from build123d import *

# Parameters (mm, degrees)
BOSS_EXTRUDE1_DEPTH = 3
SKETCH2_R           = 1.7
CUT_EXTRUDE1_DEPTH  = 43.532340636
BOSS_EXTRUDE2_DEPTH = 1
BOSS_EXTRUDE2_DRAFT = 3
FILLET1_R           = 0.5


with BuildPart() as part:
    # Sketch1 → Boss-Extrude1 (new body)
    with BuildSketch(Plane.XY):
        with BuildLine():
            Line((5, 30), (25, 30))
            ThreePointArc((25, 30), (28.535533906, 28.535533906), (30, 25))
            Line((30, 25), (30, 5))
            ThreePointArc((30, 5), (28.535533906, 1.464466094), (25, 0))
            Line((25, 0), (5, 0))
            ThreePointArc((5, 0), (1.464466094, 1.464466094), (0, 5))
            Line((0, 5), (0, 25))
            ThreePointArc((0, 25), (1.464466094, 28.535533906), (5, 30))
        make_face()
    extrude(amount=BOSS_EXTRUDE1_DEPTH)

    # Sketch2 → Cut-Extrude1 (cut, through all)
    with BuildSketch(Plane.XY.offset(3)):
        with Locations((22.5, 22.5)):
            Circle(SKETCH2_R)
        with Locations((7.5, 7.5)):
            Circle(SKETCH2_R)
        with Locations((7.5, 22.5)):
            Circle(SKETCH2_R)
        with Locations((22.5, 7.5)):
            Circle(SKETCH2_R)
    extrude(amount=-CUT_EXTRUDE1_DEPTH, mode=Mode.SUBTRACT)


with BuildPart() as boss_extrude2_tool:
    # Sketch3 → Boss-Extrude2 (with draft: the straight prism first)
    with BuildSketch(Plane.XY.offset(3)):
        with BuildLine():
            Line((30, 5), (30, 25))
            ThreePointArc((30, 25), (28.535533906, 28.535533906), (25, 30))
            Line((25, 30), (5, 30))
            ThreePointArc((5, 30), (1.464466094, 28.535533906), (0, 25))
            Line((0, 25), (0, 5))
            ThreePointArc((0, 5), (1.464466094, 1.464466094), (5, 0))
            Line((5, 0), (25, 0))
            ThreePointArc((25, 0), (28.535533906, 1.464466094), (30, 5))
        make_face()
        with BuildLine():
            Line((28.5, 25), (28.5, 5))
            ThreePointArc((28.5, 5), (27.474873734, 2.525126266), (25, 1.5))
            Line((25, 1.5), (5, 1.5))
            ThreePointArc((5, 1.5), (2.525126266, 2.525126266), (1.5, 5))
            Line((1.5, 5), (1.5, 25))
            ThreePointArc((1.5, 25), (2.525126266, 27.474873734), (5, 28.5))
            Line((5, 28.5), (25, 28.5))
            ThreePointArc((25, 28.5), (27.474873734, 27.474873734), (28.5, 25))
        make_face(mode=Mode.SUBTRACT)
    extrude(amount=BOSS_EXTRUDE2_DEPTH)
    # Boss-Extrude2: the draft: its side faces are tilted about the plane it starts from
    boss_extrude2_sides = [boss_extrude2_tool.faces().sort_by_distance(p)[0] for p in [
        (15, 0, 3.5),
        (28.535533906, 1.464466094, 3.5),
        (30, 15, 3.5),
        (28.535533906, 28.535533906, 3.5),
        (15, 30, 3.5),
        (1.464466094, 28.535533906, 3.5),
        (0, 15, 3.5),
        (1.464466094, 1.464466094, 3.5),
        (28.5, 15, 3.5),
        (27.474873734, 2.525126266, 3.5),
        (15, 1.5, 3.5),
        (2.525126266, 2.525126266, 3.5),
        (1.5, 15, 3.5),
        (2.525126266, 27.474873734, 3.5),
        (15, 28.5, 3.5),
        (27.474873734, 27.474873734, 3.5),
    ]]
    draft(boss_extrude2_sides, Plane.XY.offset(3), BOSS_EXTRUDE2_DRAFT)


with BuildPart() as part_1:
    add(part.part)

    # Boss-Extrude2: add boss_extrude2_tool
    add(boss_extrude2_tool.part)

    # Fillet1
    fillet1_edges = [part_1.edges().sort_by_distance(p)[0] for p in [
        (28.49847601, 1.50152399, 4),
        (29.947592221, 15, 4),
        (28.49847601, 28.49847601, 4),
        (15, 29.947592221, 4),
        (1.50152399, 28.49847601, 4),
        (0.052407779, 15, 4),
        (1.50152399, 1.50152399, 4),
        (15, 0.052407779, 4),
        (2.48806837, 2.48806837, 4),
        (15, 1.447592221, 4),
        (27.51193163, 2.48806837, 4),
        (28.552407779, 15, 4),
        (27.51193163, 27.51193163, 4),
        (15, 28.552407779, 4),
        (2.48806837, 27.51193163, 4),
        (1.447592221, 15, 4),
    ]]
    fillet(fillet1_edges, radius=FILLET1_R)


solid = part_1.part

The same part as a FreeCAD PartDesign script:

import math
import FreeCAD as App
import Part
import Sketcher
from FreeCAD import Vector


def edges_at(feature, points):
    """Names of the edges that pass closest to the given points."""
    edges = feature.Shape.Edges
    near = lambda p: min(range(len(edges)), key=lambda i: edges[i].distToShape(Part.Vertex(*p))[0])
    return sorted({f"Edge{near(p) + 1}" for p in points})


def faces_at(feature, points):
    """Names of the faces that lie closest to the given points."""
    faces = feature.Shape.Faces
    near = lambda p: min(range(len(faces)), key=lambda i: faces[i].distToShape(Part.Vertex(*p))[0])
    return sorted({f"Face{near(p) + 1}" for p in points})

doc = App.newDocument("Part")
body = doc.addObject("PartDesign::Body", "Body")

# Sketch on XY plane
sketch1 = body.newObject("Sketcher::SketchObject", "Sketch")
sketch1.AttachmentSupport = (doc.getObject("XY_Plane"), [""])
sketch1.MapMode = "FlatFace"
sketch1.addGeometry(Part.LineSegment(Vector(25, 30, 0), Vector(5, 30, 0)), False)
sketch1.addGeometry(Part.ArcOfCircle(Part.Circle(Vector(5, 25, 0), Vector(0, 0, 1), 5), math.radians(90), math.radians(180)), False)
sketch1.addGeometry(Part.LineSegment(Vector(0, 25, 0), Vector(0, 5, 0)), False)
sketch1.addGeometry(Part.ArcOfCircle(Part.Circle(Vector(5, 5, 0), Vector(0, 0, 1), 5), math.radians(180), math.radians(270)), False)
sketch1.addGeometry(Part.LineSegment(Vector(5, 0, 0), Vector(25, 0, 0)), False)
sketch1.addGeometry(Part.ArcOfCircle(Part.Circle(Vector(25, 5, 0), Vector(0, 0, 1), 5), math.radians(-90), math.radians(0)), False)
sketch1.addGeometry(Part.LineSegment(Vector(30, 5, 0), Vector(30, 25, 0)), False)
sketch1.addGeometry(Part.ArcOfCircle(Part.Circle(Vector(25, 25, 0), Vector(0, 0, 1), 5), math.radians(0), math.radians(90)), False)
sketch1.addConstraint(Sketcher.Constraint("Tangent", 0, 2, 1, 1))
sketch1.addConstraint(Sketcher.Constraint("Tangent", 1, 2, 2, 1))
sketch1.addConstraint(Sketcher.Constraint("Tangent", 2, 2, 3, 1))
sketch1.addConstraint(Sketcher.Constraint("Tangent", 3, 2, 4, 1))
sketch1.addConstraint(Sketcher.Constraint("Tangent", 4, 2, 5, 1))
sketch1.addConstraint(Sketcher.Constraint("Tangent", 5, 2, 6, 1))
sketch1.addConstraint(Sketcher.Constraint("Tangent", 6, 2, 7, 1))
sketch1.addConstraint(Sketcher.Constraint("Tangent", 7, 2, 0, 1))
sketch1.addConstraint(Sketcher.Constraint("Horizontal", 0))
sketch1.addConstraint(Sketcher.Constraint("Vertical", 2))
sketch1.addConstraint(Sketcher.Constraint("Horizontal", 4))
sketch1.addConstraint(Sketcher.Constraint("Vertical", 6))
sketch1.addConstraint(Sketcher.Constraint("Equal", 1, 3))
sketch1.addConstraint(Sketcher.Constraint("Equal", 3, 5))
sketch1.addConstraint(Sketcher.Constraint("Equal", 5, 7))
sketch1.addConstraint(Sketcher.Constraint("PointOnObject", 1, 2, -2))
sketch1.addConstraint(Sketcher.Constraint("PointOnObject", 3, 2, -1))
sketch1.addConstraint(Sketcher.Constraint("Equal", 4, 2))
sketch1.addConstraint(Sketcher.Constraint("Radius", 1, 5.0))
sketch1.addConstraint(Sketcher.Constraint("DistanceX", 0, 2, 0, 1, 20.0))
pad1 = body.newObject("PartDesign::Pad", "Pad")
pad1.Profile = sketch1
pad1.Length = 3

# Sketch on XY plane
sketch2 = body.newObject("Sketcher::SketchObject", "Sketch001")
sketch2.AttachmentSupport = (doc.getObject("XY_Plane"), [""])
sketch2.MapMode = "FlatFace"
sketch2.AttachmentOffset = App.Placement(Vector(0, 0, 3), App.Rotation())
sketch2.addGeometry(Part.Circle(Vector(22.5, 22.5, 0), Vector(0, 0, 1), 1.7), False)
sketch2.addGeometry(Part.Circle(Vector(7.5, 7.5, 0), Vector(0, 0, 1), 1.7), False)
sketch2.addGeometry(Part.Circle(Vector(7.5, 22.5, 0), Vector(0, 0, 1), 1.7), False)
sketch2.addGeometry(Part.Circle(Vector(22.5, 7.5, 0), Vector(0, 0, 1), 1.7), False)
sketch2.addConstraint(Sketcher.Constraint("Equal", 0, 1))
sketch2.addConstraint(Sketcher.Constraint("Equal", 1, 2))
sketch2.addConstraint(Sketcher.Constraint("Equal", 2, 3))
sketch2.addConstraint(Sketcher.Constraint("Horizontal", 0, 3, 2, 3))
sketch2.addConstraint(Sketcher.Constraint("Horizontal", 1, 3, 3, 3))
sketch2.addConstraint(Sketcher.Constraint("Vertical", 1, 3, 2, 3))
sketch2.addConstraint(Sketcher.Constraint("Vertical", 0, 3, 3, 3))
sketch2.addConstraint(Sketcher.Constraint("Diameter", 0, 3.4))
sketch2.addConstraint(Sketcher.Constraint("DistanceX", 1, 3, 0, 3, 15.0))
sketch2.addConstraint(Sketcher.Constraint("DistanceY", 1, 3, 0, 3, 15.0))
sketch2.addConstraint(Sketcher.Constraint("DistanceX", -1, 1, 0, 3, 22.5))
sketch2.addConstraint(Sketcher.Constraint("DistanceY", -1, 1, 0, 3, 22.5))
pocket1 = body.newObject("PartDesign::Pocket", "Pocket")
pocket1.Profile = sketch2
pocket1.Type = "ThroughAll"
body2 = doc.addObject("PartDesign::Body", "Body001")

# Sketch on XY plane
sketch3 = body2.newObject("Sketcher::SketchObject", "Sketch002")
sketch3.AttachmentSupport = (doc.getObject("XY_Plane001"), [""])
sketch3.MapMode = "FlatFace"
sketch3.AttachmentOffset = App.Placement(Vector(0, 0, 3), App.Rotation())
sketch3.addGeometry(Part.LineSegment(Vector(30, 5, 0), Vector(30, 25, 0)), False)
sketch3.addGeometry(Part.ArcOfCircle(Part.Circle(Vector(25, 25, 0), Vector(0, 0, 1), 5), math.radians(0), math.radians(90)), False)
sketch3.addGeometry(Part.LineSegment(Vector(25, 30, 0), Vector(5, 30, 0)), False)
sketch3.addGeometry(Part.ArcOfCircle(Part.Circle(Vector(5, 25, 0), Vector(0, 0, 1), 5), math.radians(90), math.radians(180)), False)
sketch3.addGeometry(Part.LineSegment(Vector(0, 25, 0), Vector(0, 5, 0)), False)
sketch3.addGeometry(Part.ArcOfCircle(Part.Circle(Vector(5, 5, 0), Vector(0, 0, 1), 5), math.radians(180), math.radians(270)), False)
sketch3.addGeometry(Part.LineSegment(Vector(5, 0, 0), Vector(25, 0, 0)), False)
sketch3.addGeometry(Part.ArcOfCircle(Part.Circle(Vector(25, 5, 0), Vector(0, 0, 1), 5), math.radians(-90), math.radians(0)), False)
sketch3.addGeometry(Part.ArcOfCircle(Part.Circle(Vector(25, 25, 0), Vector(0, 0, 1), 3.5), math.radians(0), math.radians(90)), False)
sketch3.addGeometry(Part.LineSegment(Vector(28.5, 25, 0), Vector(28.5, 5, 0)), False)
sketch3.addGeometry(Part.ArcOfCircle(Part.Circle(Vector(25, 5, 0), Vector(0, 0, 1), 3.5), math.radians(-90), math.radians(0)), False)
sketch3.addGeometry(Part.LineSegment(Vector(25, 1.5, 0), Vector(5, 1.5, 0)), False)
sketch3.addGeometry(Part.ArcOfCircle(Part.Circle(Vector(5, 5, 0), Vector(0, 0, 1), 3.5), math.radians(-180), math.radians(-90)), False)
sketch3.addGeometry(Part.LineSegment(Vector(1.5, 5, 0), Vector(1.5, 25, 0)), False)
sketch3.addGeometry(Part.ArcOfCircle(Part.Circle(Vector(5, 25, 0), Vector(0, 0, 1), 3.5), math.radians(90), math.radians(180)), False)
sketch3.addGeometry(Part.LineSegment(Vector(5, 28.5, 0), Vector(25, 28.5, 0)), False)
sketch3.addConstraint(Sketcher.Constraint("Tangent", 0, 2, 1, 1))
sketch3.addConstraint(Sketcher.Constraint("Tangent", 1, 2, 2, 1))
sketch3.addConstraint(Sketcher.Constraint("Tangent", 2, 2, 3, 1))
sketch3.addConstraint(Sketcher.Constraint("Tangent", 3, 2, 4, 1))
sketch3.addConstraint(Sketcher.Constraint("Tangent", 4, 2, 5, 1))
sketch3.addConstraint(Sketcher.Constraint("Tangent", 5, 2, 6, 1))
sketch3.addConstraint(Sketcher.Constraint("Tangent", 6, 2, 7, 1))
sketch3.addConstraint(Sketcher.Constraint("Tangent", 7, 2, 0, 1))
sketch3.addConstraint(Sketcher.Constraint("Tangent", 8, 1, 9, 1))
sketch3.addConstraint(Sketcher.Constraint("Tangent", 9, 2, 10, 2))
sketch3.addConstraint(Sketcher.Constraint("Tangent", 10, 1, 11, 1))
sketch3.addConstraint(Sketcher.Constraint("Tangent", 11, 2, 12, 2))
sketch3.addConstraint(Sketcher.Constraint("Tangent", 12, 1, 13, 1))
sketch3.addConstraint(Sketcher.Constraint("Tangent", 13, 2, 14, 2))
sketch3.addConstraint(Sketcher.Constraint("Tangent", 14, 1, 15, 1))
sketch3.addConstraint(Sketcher.Constraint("Tangent", 15, 2, 8, 2))
sketch3.addConstraint(Sketcher.Constraint("Vertical", 0))
sketch3.addConstraint(Sketcher.Constraint("Horizontal", 2))
sketch3.addConstraint(Sketcher.Constraint("Vertical", 4))
sketch3.addConstraint(Sketcher.Constraint("Horizontal", 6))
sketch3.addConstraint(Sketcher.Constraint("Vertical", 9))
sketch3.addConstraint(Sketcher.Constraint("Horizontal", 11))
sketch3.addConstraint(Sketcher.Constraint("Vertical", 13))
sketch3.addConstraint(Sketcher.Constraint("Horizontal", 15))
sketch3.addConstraint(Sketcher.Constraint("Coincident", 8, 3, 1, 3))
sketch3.addConstraint(Sketcher.Constraint("Coincident", 10, 3, 7, 3))
sketch3.addConstraint(Sketcher.Constraint("Coincident", 12, 3, 5, 3))
sketch3.addConstraint(Sketcher.Constraint("Equal", 1, 3))
sketch3.addConstraint(Sketcher.Constraint("Equal", 3, 5))
sketch3.addConstraint(Sketcher.Constraint("Equal", 5, 7))
sketch3.addConstraint(Sketcher.Constraint("Equal", 12, 14))
sketch3.addConstraint(Sketcher.Constraint("PointOnObject", 3, 2, -2))
sketch3.addConstraint(Sketcher.Constraint("PointOnObject", 5, 2, -1))
sketch3.addConstraint(Sketcher.Constraint("Equal", 15, 0))
sketch3.addConstraint(Sketcher.Constraint("Radius", 1, 5.0))
sketch3.addConstraint(Sketcher.Constraint("Radius", 8, 3.5))
sketch3.addConstraint(Sketcher.Constraint("DistanceX", 2, 2, 2, 1, 20.0))
pad2 = body2.newObject("PartDesign::Pad", "Pad001")
pad2.Profile = sketch3
pad2.Length = 1
doc.recompute()

datumplane = body2.newObject("PartDesign::Plane", "DatumPlane")
datumplane.AttachmentSupport = (doc.getObject("XY_Plane001"), [""])
datumplane.MapMode = "FlatFace"
datumplane.AttachmentOffset = App.Placement(Vector(0, 0, 3), App.Rotation())
draft = body2.newObject("PartDesign::Draft", "Draft")
draft.Base = (pad2, faces_at(pad2, [
    (15, 0, 3.5),
    (28.536, 1.464, 3.5),
    (30, 15, 3.5),
    (28.536, 28.536, 3.5),
    (15, 30, 3.5),
    (1.464, 28.536, 3.5),
    (0, 15, 3.5),
    (1.464, 1.464, 3.5),
    (28.5, 15, 3.5),
    (27.475, 2.525, 3.5),
    (15, 1.5, 3.5),
    (2.525, 2.525, 3.5),
    (1.5, 15, 3.5),
    (2.525, 27.475, 3.5),
    (15, 28.5, 3.5),
    (27.475, 27.475, 3.5),
]))
draft.NeutralPlane = (datumplane, [""])
draft.Angle = 3
draft.Reversed = False
doc.recompute()

boolean = body.newObject("PartDesign::Boolean", "Boolean")
boolean.Type = "Fuse"
boolean.addObjects([body2])
doc.recompute()

fillet = body.newObject("PartDesign::Fillet", "Fillet")
fillet.Base = (boolean, edges_at(boolean, [
    (28.498, 1.502, 4),
    (29.948, 15, 4),
    (28.498, 28.498, 4),
    (15, 29.948, 4),
    (1.502, 28.498, 4),
    (0.052, 15, 4),
    (1.502, 1.502, 4),
    (15, 0.052, 4),
    (2.488, 2.488, 4),
    (15, 1.448, 4),
    (27.512, 2.488, 4),
    (28.552, 15, 4),
    (27.512, 27.512, 4),
    (15, 28.552, 4),
    (2.488, 27.512, 4),
    (1.448, 15, 4),
]))
fillet.Radius = 0.5

doc.recompute()
